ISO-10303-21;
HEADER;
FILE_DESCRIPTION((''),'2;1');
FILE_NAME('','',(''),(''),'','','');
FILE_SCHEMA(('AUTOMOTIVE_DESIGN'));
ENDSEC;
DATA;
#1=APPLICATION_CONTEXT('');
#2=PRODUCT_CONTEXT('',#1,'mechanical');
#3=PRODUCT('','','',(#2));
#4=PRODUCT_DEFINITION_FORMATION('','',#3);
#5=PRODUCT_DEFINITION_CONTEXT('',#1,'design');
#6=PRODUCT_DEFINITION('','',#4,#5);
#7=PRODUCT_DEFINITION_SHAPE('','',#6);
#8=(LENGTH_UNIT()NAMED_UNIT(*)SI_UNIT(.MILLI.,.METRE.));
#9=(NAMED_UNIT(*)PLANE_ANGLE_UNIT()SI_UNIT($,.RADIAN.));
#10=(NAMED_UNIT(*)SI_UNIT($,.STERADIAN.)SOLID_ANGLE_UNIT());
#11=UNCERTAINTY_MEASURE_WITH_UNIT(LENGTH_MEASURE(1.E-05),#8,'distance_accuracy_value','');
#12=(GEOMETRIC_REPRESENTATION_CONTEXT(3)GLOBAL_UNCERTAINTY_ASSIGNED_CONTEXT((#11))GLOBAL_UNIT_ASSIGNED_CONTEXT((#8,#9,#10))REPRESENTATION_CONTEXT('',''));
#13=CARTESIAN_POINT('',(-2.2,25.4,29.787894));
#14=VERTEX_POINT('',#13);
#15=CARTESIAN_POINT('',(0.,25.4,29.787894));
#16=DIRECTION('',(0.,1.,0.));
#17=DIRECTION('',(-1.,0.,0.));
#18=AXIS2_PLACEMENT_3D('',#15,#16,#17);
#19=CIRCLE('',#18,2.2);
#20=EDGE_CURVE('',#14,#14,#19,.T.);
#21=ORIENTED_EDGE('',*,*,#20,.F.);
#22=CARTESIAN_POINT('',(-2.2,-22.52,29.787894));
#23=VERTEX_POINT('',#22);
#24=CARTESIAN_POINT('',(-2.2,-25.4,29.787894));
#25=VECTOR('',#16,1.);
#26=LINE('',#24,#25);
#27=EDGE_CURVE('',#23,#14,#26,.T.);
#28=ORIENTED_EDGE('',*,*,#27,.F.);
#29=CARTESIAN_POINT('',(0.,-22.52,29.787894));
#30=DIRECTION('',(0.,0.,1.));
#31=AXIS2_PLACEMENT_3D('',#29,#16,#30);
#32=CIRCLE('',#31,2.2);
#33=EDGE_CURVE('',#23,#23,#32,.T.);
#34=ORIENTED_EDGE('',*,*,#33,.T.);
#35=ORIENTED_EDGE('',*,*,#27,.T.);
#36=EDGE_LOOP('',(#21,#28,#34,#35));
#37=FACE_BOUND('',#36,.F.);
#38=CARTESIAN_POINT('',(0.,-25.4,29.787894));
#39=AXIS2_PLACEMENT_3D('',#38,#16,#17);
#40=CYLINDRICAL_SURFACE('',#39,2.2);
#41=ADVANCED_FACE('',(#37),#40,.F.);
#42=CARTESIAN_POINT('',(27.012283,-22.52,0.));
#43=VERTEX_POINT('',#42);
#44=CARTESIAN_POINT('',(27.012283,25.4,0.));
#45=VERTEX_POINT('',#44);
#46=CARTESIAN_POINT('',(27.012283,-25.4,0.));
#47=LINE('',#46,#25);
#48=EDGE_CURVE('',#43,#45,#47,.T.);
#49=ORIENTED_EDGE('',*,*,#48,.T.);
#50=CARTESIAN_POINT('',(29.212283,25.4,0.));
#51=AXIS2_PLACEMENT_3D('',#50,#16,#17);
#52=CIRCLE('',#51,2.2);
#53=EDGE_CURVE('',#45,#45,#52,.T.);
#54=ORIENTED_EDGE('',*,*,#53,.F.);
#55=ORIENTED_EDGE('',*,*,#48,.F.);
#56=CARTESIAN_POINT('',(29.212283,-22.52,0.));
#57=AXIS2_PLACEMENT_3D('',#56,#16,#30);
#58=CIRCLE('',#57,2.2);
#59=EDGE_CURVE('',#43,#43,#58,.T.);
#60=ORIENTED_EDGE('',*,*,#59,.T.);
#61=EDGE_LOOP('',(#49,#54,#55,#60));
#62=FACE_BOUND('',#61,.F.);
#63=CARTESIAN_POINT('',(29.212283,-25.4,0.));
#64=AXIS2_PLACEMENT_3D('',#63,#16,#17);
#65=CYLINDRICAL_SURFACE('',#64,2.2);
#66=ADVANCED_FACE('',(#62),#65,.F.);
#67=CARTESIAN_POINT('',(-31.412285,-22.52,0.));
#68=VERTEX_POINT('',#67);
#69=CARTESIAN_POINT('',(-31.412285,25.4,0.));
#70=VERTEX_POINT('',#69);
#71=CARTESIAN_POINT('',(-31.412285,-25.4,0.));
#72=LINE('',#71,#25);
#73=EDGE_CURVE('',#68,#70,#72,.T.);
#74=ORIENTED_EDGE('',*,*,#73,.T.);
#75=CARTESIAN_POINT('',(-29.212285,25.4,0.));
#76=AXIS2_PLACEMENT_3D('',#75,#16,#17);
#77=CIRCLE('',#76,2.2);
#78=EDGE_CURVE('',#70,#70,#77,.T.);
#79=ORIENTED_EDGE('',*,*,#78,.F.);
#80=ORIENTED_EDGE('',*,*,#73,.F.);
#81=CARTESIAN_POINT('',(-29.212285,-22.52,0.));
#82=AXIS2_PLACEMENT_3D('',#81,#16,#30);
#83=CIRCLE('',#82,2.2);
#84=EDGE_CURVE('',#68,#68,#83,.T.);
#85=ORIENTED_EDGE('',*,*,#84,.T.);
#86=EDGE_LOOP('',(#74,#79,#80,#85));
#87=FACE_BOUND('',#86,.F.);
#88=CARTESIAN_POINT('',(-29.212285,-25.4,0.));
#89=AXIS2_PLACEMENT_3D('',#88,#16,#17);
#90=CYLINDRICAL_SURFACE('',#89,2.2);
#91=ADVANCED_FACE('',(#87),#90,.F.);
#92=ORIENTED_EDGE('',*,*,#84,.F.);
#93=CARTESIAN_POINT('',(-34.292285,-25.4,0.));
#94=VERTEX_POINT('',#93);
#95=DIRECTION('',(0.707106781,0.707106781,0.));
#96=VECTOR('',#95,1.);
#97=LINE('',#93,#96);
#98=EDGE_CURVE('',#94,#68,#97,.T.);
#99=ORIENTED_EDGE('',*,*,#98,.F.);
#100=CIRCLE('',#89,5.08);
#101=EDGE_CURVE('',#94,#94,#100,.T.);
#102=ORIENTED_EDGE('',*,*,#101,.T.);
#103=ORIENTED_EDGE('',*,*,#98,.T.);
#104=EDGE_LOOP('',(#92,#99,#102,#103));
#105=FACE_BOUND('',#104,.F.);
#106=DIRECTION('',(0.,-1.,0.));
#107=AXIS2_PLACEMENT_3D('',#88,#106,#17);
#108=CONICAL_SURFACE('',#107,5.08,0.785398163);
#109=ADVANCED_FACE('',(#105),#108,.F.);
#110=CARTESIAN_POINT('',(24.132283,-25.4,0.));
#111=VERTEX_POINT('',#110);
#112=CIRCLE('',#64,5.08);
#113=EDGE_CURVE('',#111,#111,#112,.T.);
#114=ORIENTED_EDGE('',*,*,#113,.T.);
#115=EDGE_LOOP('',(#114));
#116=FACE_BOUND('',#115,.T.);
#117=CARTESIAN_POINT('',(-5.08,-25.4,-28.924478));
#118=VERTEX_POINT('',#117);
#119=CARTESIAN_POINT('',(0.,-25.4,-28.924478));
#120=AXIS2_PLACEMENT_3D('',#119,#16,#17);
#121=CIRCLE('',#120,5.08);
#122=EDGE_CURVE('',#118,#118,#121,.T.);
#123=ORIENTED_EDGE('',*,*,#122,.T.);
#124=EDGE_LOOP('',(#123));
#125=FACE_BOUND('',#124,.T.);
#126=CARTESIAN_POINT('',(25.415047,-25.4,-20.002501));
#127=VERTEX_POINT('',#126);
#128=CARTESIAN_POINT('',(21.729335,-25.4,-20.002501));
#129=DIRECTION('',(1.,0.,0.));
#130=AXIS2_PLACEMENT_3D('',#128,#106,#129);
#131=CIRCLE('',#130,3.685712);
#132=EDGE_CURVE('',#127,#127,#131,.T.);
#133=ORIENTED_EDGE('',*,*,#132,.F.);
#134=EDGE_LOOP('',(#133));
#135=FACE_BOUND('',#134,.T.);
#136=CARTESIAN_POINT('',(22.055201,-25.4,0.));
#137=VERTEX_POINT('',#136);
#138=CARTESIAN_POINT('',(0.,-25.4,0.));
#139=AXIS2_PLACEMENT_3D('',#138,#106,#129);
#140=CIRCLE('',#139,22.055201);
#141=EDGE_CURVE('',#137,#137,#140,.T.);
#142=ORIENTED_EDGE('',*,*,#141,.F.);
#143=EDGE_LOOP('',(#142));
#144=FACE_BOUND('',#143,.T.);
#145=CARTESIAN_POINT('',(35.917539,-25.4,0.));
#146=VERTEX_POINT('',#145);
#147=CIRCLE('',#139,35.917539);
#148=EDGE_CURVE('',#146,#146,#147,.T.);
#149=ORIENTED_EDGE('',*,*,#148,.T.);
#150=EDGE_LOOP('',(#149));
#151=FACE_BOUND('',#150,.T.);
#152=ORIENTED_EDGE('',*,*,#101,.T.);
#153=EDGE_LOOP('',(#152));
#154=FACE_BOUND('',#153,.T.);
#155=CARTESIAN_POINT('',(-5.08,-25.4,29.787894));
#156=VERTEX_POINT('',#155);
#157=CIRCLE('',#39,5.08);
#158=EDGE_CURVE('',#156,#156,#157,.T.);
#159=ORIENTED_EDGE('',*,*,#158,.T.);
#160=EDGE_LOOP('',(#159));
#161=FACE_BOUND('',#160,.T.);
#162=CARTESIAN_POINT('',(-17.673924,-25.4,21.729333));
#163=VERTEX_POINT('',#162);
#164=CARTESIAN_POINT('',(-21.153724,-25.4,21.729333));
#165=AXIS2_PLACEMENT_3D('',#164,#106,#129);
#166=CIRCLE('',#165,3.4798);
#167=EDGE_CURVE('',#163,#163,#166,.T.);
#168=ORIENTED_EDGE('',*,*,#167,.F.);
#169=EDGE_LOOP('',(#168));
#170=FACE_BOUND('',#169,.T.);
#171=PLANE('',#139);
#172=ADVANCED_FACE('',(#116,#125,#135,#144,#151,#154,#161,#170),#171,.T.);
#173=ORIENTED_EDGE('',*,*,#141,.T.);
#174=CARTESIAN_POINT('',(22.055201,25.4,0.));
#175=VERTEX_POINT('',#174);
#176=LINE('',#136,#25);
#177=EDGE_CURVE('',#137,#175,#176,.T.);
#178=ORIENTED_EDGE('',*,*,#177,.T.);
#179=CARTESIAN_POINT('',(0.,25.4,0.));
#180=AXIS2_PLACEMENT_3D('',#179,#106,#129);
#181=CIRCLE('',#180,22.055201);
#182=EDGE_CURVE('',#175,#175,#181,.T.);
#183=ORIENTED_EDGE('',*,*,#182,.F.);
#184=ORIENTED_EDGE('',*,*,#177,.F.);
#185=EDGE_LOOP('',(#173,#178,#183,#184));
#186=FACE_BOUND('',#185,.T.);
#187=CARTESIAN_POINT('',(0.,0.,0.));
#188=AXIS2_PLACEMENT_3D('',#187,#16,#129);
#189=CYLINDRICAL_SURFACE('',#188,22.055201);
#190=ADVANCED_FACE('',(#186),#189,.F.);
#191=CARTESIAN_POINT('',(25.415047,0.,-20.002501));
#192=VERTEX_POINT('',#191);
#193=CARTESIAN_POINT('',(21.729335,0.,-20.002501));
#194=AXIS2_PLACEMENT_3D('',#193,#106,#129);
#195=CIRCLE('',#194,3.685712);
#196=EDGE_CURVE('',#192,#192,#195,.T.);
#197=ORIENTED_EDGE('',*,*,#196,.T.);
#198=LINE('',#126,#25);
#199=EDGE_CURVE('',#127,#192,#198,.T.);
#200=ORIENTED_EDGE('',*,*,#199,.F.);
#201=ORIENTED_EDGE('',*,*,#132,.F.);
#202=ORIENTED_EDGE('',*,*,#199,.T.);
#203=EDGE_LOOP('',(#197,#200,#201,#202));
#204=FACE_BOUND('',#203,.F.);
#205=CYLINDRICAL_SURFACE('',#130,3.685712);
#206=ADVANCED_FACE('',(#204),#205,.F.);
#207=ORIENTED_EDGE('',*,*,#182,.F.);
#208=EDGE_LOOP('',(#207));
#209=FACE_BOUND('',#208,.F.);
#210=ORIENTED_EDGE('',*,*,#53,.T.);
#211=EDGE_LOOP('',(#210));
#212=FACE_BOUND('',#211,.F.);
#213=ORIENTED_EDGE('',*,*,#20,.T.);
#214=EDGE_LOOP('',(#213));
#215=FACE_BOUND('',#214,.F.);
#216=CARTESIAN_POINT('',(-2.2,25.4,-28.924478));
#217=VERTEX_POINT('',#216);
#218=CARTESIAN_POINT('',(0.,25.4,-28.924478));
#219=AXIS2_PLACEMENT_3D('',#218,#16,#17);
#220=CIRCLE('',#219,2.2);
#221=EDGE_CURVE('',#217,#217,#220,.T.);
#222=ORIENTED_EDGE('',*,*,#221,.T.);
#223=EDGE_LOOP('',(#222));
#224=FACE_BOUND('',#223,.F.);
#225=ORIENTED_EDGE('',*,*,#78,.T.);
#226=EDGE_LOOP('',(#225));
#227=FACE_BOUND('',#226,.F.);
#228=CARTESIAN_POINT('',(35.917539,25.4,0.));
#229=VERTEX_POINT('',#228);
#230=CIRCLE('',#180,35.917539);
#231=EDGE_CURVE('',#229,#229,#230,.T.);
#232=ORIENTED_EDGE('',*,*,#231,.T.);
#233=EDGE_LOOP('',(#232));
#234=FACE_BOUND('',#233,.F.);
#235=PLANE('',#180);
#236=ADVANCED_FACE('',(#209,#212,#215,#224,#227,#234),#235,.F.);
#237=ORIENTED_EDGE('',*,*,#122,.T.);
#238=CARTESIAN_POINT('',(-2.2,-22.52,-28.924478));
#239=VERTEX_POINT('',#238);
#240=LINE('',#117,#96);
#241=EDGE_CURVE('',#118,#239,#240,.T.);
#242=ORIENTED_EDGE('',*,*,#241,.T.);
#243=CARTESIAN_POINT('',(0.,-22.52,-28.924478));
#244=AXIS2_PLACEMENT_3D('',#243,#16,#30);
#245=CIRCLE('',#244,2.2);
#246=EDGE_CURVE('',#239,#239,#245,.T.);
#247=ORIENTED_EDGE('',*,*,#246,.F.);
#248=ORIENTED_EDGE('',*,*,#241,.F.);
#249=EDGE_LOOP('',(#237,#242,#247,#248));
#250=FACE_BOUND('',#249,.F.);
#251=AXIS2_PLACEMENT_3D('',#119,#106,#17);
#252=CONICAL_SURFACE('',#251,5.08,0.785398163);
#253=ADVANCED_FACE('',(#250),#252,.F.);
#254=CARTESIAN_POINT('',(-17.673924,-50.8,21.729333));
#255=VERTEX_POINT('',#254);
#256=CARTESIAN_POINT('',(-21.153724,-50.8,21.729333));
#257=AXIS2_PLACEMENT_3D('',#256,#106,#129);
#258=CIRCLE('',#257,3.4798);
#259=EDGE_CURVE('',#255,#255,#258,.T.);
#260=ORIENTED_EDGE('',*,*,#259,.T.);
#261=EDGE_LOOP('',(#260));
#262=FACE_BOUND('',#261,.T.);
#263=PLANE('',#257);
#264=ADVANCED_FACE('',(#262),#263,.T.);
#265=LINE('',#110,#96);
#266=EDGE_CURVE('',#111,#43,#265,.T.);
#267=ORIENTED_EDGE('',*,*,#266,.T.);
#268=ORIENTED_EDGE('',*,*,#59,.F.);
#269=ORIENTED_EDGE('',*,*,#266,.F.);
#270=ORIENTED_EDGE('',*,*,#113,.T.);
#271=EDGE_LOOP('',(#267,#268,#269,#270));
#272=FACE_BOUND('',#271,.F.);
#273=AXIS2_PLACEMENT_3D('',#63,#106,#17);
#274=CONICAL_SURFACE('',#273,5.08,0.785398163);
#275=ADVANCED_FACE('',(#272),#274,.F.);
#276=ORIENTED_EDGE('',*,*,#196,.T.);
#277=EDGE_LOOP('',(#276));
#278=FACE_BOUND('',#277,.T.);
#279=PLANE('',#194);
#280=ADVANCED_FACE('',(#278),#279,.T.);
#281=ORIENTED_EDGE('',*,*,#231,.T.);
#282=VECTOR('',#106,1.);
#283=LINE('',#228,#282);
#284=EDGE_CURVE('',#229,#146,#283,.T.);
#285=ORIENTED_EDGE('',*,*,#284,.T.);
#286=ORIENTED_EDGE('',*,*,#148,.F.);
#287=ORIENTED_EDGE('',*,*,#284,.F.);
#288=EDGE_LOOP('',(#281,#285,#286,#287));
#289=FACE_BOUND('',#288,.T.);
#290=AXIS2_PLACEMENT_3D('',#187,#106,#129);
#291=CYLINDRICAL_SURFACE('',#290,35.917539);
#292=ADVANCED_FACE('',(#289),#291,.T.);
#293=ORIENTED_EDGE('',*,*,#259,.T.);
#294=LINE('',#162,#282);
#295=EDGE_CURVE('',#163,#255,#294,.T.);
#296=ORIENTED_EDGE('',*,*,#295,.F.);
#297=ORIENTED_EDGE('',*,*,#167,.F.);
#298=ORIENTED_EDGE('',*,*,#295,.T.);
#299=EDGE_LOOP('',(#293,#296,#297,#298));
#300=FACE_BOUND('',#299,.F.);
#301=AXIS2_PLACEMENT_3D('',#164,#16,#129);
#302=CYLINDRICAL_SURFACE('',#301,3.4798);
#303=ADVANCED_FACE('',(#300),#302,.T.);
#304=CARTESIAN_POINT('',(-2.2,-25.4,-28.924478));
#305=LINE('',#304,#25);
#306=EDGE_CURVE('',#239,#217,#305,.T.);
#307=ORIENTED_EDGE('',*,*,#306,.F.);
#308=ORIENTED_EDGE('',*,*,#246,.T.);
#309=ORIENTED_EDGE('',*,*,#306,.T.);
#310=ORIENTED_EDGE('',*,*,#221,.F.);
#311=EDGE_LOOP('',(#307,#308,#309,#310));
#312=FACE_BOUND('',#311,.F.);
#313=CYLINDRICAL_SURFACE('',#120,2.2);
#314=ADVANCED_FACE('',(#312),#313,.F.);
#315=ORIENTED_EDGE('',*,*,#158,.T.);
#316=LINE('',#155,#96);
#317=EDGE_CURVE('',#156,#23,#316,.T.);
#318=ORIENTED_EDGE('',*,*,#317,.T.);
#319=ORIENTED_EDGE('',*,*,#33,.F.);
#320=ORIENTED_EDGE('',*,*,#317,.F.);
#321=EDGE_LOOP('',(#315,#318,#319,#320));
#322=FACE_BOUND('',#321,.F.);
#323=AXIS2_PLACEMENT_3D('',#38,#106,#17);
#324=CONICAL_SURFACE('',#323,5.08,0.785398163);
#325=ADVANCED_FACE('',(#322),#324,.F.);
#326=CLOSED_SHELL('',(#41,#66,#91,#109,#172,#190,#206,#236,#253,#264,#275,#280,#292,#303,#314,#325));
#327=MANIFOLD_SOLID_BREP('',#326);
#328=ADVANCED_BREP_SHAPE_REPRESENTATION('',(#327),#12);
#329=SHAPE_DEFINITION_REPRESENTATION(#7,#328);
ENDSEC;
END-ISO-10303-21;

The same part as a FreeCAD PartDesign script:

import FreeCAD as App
import Part
import Sketcher
Q = App.Units.Quantity

doc = App.newDocument("Part")
body = doc.addObject("PartDesign::Body", "Body")

sketch1 = body.newObject("Sketcher::SketchObject", "Sketch")
sketch1.AttachmentSupport = (doc.getObject("XZ_Plane"), [""])
sketch1.MapMode = "FlatFace"
sketch1.addGeometry([
    Part.Circle(App.Vector(0, 0, 0), App.Vector(0, 0, 1), 36),
    Part.Circle(App.Vector(0, 0, 0), App.Vector(0, 0, 1), 22),
], False)
sketch1.addConstraint([
    Sketcher.Constraint("Coincident", 0, 3, -1, 1),
    Sketcher.Constraint("Coincident", 1, 3, -1, 1),
    Sketcher.Constraint("Diameter", 0, 71.835078),
    Sketcher.Constraint("Diameter", 1, 44.110402),
])
pad1 = body.newObject("PartDesign::Pad", "Pad")
pad1.Profile = sketch1
pad1.Length = Q("2 in")
pad1.Midplane = True

sketch2 = body.newObject("Sketcher::SketchObject", "Sketch001")
sketch2.AttachmentSupport = (doc.getObject("XZ_Plane"), [""])
sketch2.MapMode = "FlatFace"
sketch2.AttachmentOffset = App.Placement(App.Vector(0, 0, 1 * 25.4), App.Rotation())
sketch2.addGeometry([
    Part.Circle(App.Vector(-29.2, 0, 0), App.Vector(0, 0, 1), 2.2),
    Part.Circle(App.Vector(0, 29.8, 0), App.Vector(0, 0, 1), 2.2),
    Part.Circle(App.Vector(29.2, 0, 0), App.Vector(0, 0, 1), 2.2),
    Part.Circle(App.Vector(0, -28.9, 0), App.Vector(0, 0, 1), 2.2),
], False)
sketch2.addConstraint([
    Sketcher.Constraint("Equal", 0, 1),
    Sketcher.Constraint("Equal", 1, 2),
    Sketcher.Constraint("Equal", 2, 3),
    Sketcher.Constraint("Symmetric", 0, 3, 2, 3, -1, 1),
    Sketcher.Constraint("PointOnObject", 0, 3, -1),
    Sketcher.Constraint("PointOnObject", 1, 3, -2),
    Sketcher.Constraint("PointOnObject", 3, 3, -2),
    Sketcher.Constraint("Diameter", 0, 4.4),
    Sketcher.Constraint("DistanceY", 3, 3, -1, 1, 28.924478),
    Sketcher.Constraint("DistanceX", 0, 3, -1, 1, 29.212285),
    Sketcher.Constraint("DistanceY", -1, 1, 1, 3, 29.787894),
])
doc.recompute()
hole = body.newObject("PartDesign::Hole", "Hole")
hole.Profile = sketch2
hole.ThreadType = "None"
hole.Diameter = 4.4
hole.DepthType = "ThroughAll"
hole.HoleCutType = "Countersink"
hole.HoleCutDiameter = Q("0.4 in")
hole.HoleCutCountersinkAngle = 90

sketch3 = body.newObject("Sketcher::SketchObject", "Sketch002")
sketch3.AttachmentSupport = (doc.getObject("XZ_Plane"), [""])
sketch3.MapMode = "FlatFace"
sketch3.AttachmentOffset = App.Placement(App.Vector(0, 0, 1 * 25.4), App.Rotation())
sketch3.addGeometry(Part.Circle(App.Vector(-21.2, 21.7, 0), App.Vector(0, 0, 1), 3.5), False)
sketch3.addConstraint([
    Sketcher.Constraint("Diameter", 0, Q("0.274 in")),
    Sketcher.Constraint("DistanceX", 0, 3, -1, 1, 21.153724),
    Sketcher.Constraint("DistanceY", -1, 1, 0, 3, 21.729333),
])
pad2 = body.newObject("PartDesign::Pad", "Pad001")
pad2.Profile = sketch3
pad2.Length = Q("1 in")

sketch4 = body.newObject("Sketcher::SketchObject", "Sketch003")
sketch4.AttachmentSupport = (doc.getObject("XZ_Plane"), [""])
sketch4.MapMode = "FlatFace"
sketch4.AttachmentOffset = App.Placement(App.Vector(0, 0, 1 * 25.4), App.Rotation())
sketch4.addGeometry(Part.Circle(App.Vector(21.7, -20, 0), App.Vector(0, 0, 1), 3.7), False)
sketch4.addConstraint([
    Sketcher.Constraint("Diameter", 0, 7.371424),
    Sketcher.Constraint("DistanceY", 0, 3, -1, 1, Q("0.7875 in")),
    Sketcher.Constraint("DistanceX", -1, 1, 0, 3, 21.729335),
])
pocket1 = body.newObject("PartDesign::Pocket", "Pocket")
pocket1.Profile = sketch4
pocket1.Length = Q("1 in")

doc.recompute()
